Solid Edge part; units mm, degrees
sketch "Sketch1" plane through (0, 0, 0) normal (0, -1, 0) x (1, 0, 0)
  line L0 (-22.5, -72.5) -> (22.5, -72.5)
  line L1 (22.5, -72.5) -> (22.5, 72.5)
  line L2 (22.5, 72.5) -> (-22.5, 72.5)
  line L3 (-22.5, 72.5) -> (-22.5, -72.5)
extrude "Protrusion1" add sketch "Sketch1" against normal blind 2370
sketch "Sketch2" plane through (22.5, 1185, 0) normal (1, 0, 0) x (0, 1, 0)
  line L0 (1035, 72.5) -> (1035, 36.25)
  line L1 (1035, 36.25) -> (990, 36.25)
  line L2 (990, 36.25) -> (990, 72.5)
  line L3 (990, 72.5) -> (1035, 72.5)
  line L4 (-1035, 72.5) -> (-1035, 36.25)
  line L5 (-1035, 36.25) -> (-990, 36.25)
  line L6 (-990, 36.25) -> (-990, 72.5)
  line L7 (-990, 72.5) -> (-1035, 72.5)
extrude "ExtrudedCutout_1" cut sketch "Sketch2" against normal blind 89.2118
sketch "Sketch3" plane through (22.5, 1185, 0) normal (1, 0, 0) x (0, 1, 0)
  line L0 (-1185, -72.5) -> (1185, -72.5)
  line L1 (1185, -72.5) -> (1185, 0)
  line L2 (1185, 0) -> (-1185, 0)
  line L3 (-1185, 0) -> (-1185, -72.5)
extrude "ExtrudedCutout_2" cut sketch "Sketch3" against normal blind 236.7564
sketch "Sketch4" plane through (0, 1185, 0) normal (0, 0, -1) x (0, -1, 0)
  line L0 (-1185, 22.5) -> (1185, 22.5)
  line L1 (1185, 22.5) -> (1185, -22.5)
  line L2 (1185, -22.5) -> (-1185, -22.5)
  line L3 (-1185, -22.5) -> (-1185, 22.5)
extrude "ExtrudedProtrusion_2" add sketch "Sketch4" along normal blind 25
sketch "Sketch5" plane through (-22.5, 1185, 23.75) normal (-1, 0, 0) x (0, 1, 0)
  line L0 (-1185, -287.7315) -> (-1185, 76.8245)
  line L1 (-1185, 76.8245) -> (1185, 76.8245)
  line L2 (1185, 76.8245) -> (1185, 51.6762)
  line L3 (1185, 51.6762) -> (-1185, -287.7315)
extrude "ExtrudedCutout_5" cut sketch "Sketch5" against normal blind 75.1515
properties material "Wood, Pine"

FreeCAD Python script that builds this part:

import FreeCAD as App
import Part
import Sketcher
Q = App.Units.Quantity

doc = App.newDocument("Part")
body = doc.addObject("PartDesign::Body", "Body")

# Sketch on XZ plane
sketch1 = body.newObject("Sketcher::SketchObject", "Sketch")
sketch1.AttachmentSupport = (doc.getObject("XZ_Plane"), [""])
sketch1.MapMode = "FlatFace"
sketch1.addGeometry(Part.LineSegment(App.Vector(-22, 72, 0), App.Vector(-22, -72, 0)), False)
sketch1.addGeometry(Part.LineSegment(App.Vector(-22, -72, 0), App.Vector(22, -72, 0)), False)
sketch1.addGeometry(Part.LineSegment(App.Vector(22, -72, 0), App.Vector(22, 72, 0)), False)
sketch1.addGeometry(Part.LineSegment(App.Vector(22, 72, 0), App.Vector(-22, 72, 0)), False)
sketch1.addConstraint(Sketcher.Constraint("Coincident", 0, 2, 1, 1))
sketch1.addConstraint(Sketcher.Constraint("Coincident", 1, 2, 2, 1))
sketch1.addConstraint(Sketcher.Constraint("Coincident", 2, 2, 3, 1))
sketch1.addConstraint(Sketcher.Constraint("Coincident", 3, 2, 0, 1))
sketch1.addConstraint(Sketcher.Constraint("Vertical", 0))
sketch1.addConstraint(Sketcher.Constraint("Horizontal", 1))
sketch1.addConstraint(Sketcher.Constraint("Vertical", 2))
sketch1.addConstraint(Sketcher.Constraint("Horizontal", 3))
sketch1.addConstraint(Sketcher.Constraint("Symmetric", 0, 2, 2, 2, -1, 1))
sketch1.addConstraint(Sketcher.Constraint("DistanceX", 1, 1, 1, 2, Q("45 mm")))
sketch1.addConstraint(Sketcher.Constraint("DistanceY", 0, 2, 0, 1, Q("145 mm")))
pad1 = body.newObject("PartDesign::Pad", "Pad")
pad1.Profile = sketch1
pad1.Length = 2370
pad1.Reversed = True

# Sketch on YZ plane
sketch2 = body.newObject("Sketcher::SketchObject", "Sketch001")
sketch2.AttachmentSupport = (doc.getObject("YZ_Plane"), [""])
sketch2.MapMode = "FlatFace"
sketch2.AttachmentOffset = App.Placement(App.Vector(0, 0, 22.5), App.Rotation())
sketch2.addGeometry(Part.LineSegment(App.Vector(2220, 36, 0), App.Vector(2220, 72, 0)), False)
sketch2.addGeometry(Part.LineSegment(App.Vector(2220, 72, 0), App.Vector(2175, 72, 0)), False)
sketch2.addGeometry(Part.LineSegment(App.Vector(2175, 72, 0), App.Vector(2175, 36, 0)), False)
sketch2.addGeometry(Part.LineSegment(App.Vector(2175, 36, 0), App.Vector(2220, 36, 0)), False)
sketch2.addGeometry(Part.LineSegment(App.Vector(195, 72, 0), App.Vector(150, 72, 0)), False)
sketch2.addGeometry(Part.LineSegment(App.Vector(150, 72, 0), App.Vector(150, 36, 0)), False)
sketch2.addGeometry(Part.LineSegment(App.Vector(150, 36, 0), App.Vector(195, 36, 0)), False)
sketch2.addGeometry(Part.LineSegment(App.Vector(195, 36, 0), App.Vector(195, 72, 0)), False)
sketch2.addConstraint(Sketcher.Constraint("Coincident", 0, 2, 1, 1))
sketch2.addConstraint(Sketcher.Constraint("Coincident", 1, 2, 2, 1))
sketch2.addConstraint(Sketcher.Constraint("Coincident", 2, 2, 3, 1))
sketch2.addConstraint(Sketcher.Constraint("Coincident", 3, 2, 0, 1))
sketch2.addConstraint(Sketcher.Constraint("Coincident", 4, 2, 5, 1))
sketch2.addConstraint(Sketcher.Constraint("Coincident", 5, 2, 6, 1))
sketch2.addConstraint(Sketcher.Constraint("Coincident", 6, 2, 7, 1))
sketch2.addConstraint(Sketcher.Constraint("Coincident", 7, 2, 4, 1))
sketch2.addConstraint(Sketcher.Constraint("Vertical", 0))
sketch2.addConstraint(Sketcher.Constraint("Horizontal", 1))
sketch2.addConstraint(Sketcher.Constraint("Vertical", 2))
sketch2.addConstraint(Sketcher.Constraint("Horizontal", 3))
sketch2.addConstraint(Sketcher.Constraint("Horizontal", 4))
sketch2.addConstraint(Sketcher.Constraint("Vertical", 5))
sketch2.addConstraint(Sketcher.Constraint("Horizontal", 6))
sketch2.addConstraint(Sketcher.Constraint("Vertical", 7))
sketch2.addConstraint(Sketcher.Constraint("Horizontal", 1, 2, 4, 2))
sketch2.addConstraint(Sketcher.Constraint("Horizontal", 3, 2, 5, 2))
sketch2.addConstraint(Sketcher.Constraint("Equal", 3, 4))
sketch2.addConstraint(Sketcher.Constraint("DistanceX", 1, 2, 1, 1, Q("45 mm")))
sketch2.addConstraint(Sketcher.Constraint("DistanceX", -1, 1, 0, 2, Q("2220 mm")))
sketch2.addConstraint(Sketcher.Constraint("DistanceX", -1, 1, 4, 2, Q("150 mm")))
sketch2.addConstraint(Sketcher.Constraint("DistanceY", 0, 1, 0, 2, Q("36.25 mm")))
sketch2.addConstraint(Sketcher.Constraint("DistanceY", -1, 1, 0, 2, Q("72.5 mm")))
pocket1 = body.newObject("PartDesign::Pocket", "Pocket")
pocket1.Profile = sketch2
pocket1.Length = 89.2118

# Sketch on YZ plane
sketch3 = body.newObject("Sketcher::SketchObject", "Sketch002")
sketch3.AttachmentSupport = (doc.getObject("YZ_Plane"), [""])
sketch3.MapMode = "FlatFace"
sketch3.AttachmentOffset = App.Placement(App.Vector(0, 0, 22.5), App.Rotation())
sketch3.addGeometry(Part.LineSegment(App.Vector(0, 0, 0), App.Vector(0, -72, 0)), False)
sketch3.addGeometry(Part.LineSegment(App.Vector(0, -72, 0), App.Vector(2370, -72, 0)), False)
sketch3.addGeometry(Part.LineSegment(App.Vector(2370, -72, 0), App.Vector(2370, 0, 0)), False)
sketch3.addGeometry(Part.LineSegment(App.Vector(2370, 0, 0), App.Vector(0, 0, 0)), False)
sketch3.addConstraint(Sketcher.Constraint("Coincident", 0, 2, 1, 1))
sketch3.addConstraint(Sketcher.Constraint("Coincident", 1, 2, 2, 1))
sketch3.addConstraint(Sketcher.Constraint("Coincident", 2, 2, 3, 1))
sketch3.addConstraint(Sketcher.Constraint("Coincident", 3, 2, 0, 1))
sketch3.addConstraint(Sketcher.Constraint("Vertical", 0))
sketch3.addConstraint(Sketcher.Constraint("Horizontal", 1))
sketch3.addConstraint(Sketcher.Constraint("Vertical", 2))
sketch3.addConstraint(Sketcher.Constraint("Horizontal", 3))
sketch3.addConstraint(Sketcher.Constraint("Coincident", 3, 2, -1, 1))
sketch3.addConstraint(Sketcher.Constraint("DistanceX", 1, 1, 1, 2, Q("2370 mm")))
sketch3.addConstraint(Sketcher.Constraint("DistanceY", 0, 2, 0, 1, Q("72.5 mm")))
pocket2 = body.newObject("PartDesign::Pocket", "Pocket001")
pocket2.Profile = sketch3
pocket2.Length = 236.7564

# Sketch on XY plane
sketch4 = body.newObject("Sketcher::SketchObject", "Sketch003")
sketch4.AttachmentSupport = (doc.getObject("XY_Plane"), [""])
sketch4.MapMode = "FlatFace"
sketch4.addGeometry(Part.LineSegment(App.Vector(-22, 0, 0), App.Vector(-22, 2370, 0)), False)
sketch4.addGeometry(Part.LineSegment(App.Vector(-22, 2370, 0), App.Vector(22, 2370, 0)), False)
sketch4.addGeometry(Part.LineSegment(App.Vector(22, 2370, 0), App.Vector(22, 0, 0)), False)
sketch4.addGeometry(Part.LineSegment(App.Vector(22, 0, 0), App.Vector(-22, 0, 0)), False)
sketch4.addConstraint(Sketcher.Constraint("Coincident", 0, 2, 1, 1))
sketch4.addConstraint(Sketcher.Constraint("Coincident", 1, 2, 2, 1))
sketch4.addConstraint(Sketcher.Constraint("Coincident", 2, 2, 3, 1))
sketch4.addConstraint(Sketcher.Constraint("Coincident", 3, 2, 0, 1))
sketch4.addConstraint(Sketcher.Constraint("Vertical", 0))
sketch4.addConstraint(Sketcher.Constraint("Horizontal", 1))
sketch4.addConstraint(Sketcher.Constraint("Vertical", 2))
sketch4.addConstraint(Sketcher.Constraint("Horizontal", 3))
sketch4.addConstraint(Sketcher.Constraint("Symmetric", 2, 2, 3, 2, -1, 1))
sketch4.addConstraint(Sketcher.Constraint("DistanceX", 1, 1, 1, 2, Q("45 mm")))
sketch4.addConstraint(Sketcher.Constraint("DistanceY", 0, 1, 0, 2, Q("2370 mm")))
pad2 = body.newObject("PartDesign::Pad", "Pad001")
pad2.Profile = sketch4
pad2.Length = 25
pad2.Reversed = True

# Sketch on YZ plane
sketch5 = body.newObject("Sketcher::SketchObject", "Sketch004")
sketch5.AttachmentSupport = (doc.getObject("YZ_Plane"), [""])
sketch5.MapMode = "FlatFace"
sketch5.AttachmentOffset = App.Placement(App.Vector(0, 0, -22.5), App.Rotation())
sketch5.addGeometry(Part.LineSegment(App.Vector(0, -53.0745, 0), App.Vector(0, 311.4815, 0)), False)
sketch5.addGeometry(Part.LineSegment(App.Vector(0, 311.4815, 0), App.Vector(2370, -27.9262, 0)), False)
sketch5.addGeometry(Part.LineSegment(App.Vector(2370, -27.9262, 0), App.Vector(2370, -53.0745, 0)), False)
sketch5.addGeometry(Part.LineSegment(App.Vector(2370, -53.0745, 0), App.Vector(0, -53.0745, 0)), False)
sketch5.addConstraint(Sketcher.Constraint("Coincident", 0, 2, 1, 1))
sketch5.addConstraint(Sketcher.Constraint("Coincident", 1, 2, 2, 1))
sketch5.addConstraint(Sketcher.Constraint("Coincident", 2, 2, 3, 1))
sketch5.addConstraint(Sketcher.Constraint("Coincident", 3, 2, 0, 1))
sketch5.addConstraint(Sketcher.Constraint("Vertical", 0))
sketch5.addConstraint(Sketcher.Constraint("Vertical", 2))
sketch5.addConstraint(Sketcher.Constraint("Horizontal", 3))
sketch5.addConstraint(Sketcher.Constraint("PointOnObject", 0, 2, -2))
sketch5.addConstraint(Sketcher.Constraint("DistanceX", 3, 2, 3, 1, Q("2370 mm")))
sketch5.addConstraint(Sketcher.Constraint("Distance", 1, Q("2394.18 mm")))
sketch5.addConstraint(Sketcher.Constraint("DistanceY", 0, 1, 0, 2, Q("364.556 mm")))
sketch5.addConstraint(Sketcher.Constraint("DistanceY", -1, 1, 0, 2, Q("311.4815 mm")))
pocket3 = body.newObject("PartDesign::Pocket", "Pocket002")
pocket3.Profile = sketch5
pocket3.Length = 75.1515
pocket3.Reversed = True

doc.recompute()
